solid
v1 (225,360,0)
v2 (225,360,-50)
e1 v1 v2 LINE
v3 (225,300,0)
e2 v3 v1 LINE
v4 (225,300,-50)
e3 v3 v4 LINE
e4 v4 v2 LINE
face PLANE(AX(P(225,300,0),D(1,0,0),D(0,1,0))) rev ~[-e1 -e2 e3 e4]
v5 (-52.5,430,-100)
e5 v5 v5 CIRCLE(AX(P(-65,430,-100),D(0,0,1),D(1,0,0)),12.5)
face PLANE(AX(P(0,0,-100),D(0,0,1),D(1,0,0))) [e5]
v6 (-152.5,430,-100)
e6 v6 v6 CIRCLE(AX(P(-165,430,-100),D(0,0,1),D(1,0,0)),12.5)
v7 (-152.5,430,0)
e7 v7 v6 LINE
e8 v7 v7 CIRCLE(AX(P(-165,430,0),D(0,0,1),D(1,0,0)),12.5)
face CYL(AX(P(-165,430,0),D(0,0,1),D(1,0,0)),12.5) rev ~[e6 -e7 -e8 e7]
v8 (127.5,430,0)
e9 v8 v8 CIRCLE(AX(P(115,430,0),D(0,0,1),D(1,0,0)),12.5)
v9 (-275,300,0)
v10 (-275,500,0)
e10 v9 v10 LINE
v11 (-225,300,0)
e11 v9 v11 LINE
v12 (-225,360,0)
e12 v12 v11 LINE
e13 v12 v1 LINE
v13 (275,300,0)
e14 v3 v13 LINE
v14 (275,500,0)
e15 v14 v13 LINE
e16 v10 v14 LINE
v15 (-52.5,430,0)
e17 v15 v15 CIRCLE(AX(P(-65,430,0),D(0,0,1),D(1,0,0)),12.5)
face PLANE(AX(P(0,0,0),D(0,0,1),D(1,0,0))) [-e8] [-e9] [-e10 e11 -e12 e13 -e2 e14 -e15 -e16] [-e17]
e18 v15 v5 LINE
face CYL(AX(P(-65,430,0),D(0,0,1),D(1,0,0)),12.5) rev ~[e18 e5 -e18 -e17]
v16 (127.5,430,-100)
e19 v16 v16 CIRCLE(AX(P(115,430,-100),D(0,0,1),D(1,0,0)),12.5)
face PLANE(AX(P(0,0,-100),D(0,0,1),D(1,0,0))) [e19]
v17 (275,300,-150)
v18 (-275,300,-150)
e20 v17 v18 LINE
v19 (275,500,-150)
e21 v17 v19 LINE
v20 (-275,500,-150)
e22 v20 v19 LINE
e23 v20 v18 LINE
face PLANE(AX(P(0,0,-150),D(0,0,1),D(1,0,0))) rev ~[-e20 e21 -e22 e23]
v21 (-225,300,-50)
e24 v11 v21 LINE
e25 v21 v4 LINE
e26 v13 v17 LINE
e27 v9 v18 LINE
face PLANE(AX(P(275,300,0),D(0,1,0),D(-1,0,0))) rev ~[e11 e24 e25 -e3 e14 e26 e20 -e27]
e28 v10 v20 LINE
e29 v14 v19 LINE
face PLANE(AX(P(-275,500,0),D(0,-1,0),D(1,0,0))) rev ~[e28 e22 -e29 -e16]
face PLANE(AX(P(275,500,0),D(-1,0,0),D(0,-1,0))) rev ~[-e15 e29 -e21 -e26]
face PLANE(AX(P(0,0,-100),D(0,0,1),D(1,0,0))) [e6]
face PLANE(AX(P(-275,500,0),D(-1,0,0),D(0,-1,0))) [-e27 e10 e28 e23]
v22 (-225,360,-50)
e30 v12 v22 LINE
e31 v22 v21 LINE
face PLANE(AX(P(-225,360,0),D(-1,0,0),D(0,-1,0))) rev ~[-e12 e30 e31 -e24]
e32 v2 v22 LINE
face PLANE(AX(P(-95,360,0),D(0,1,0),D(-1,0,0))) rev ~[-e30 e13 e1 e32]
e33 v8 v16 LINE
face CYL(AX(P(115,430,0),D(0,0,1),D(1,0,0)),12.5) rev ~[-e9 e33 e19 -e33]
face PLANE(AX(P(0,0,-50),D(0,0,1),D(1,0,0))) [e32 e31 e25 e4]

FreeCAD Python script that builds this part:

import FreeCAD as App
import Part
import Sketcher


def add_polygon(sketch, points):
    """Adds a closed chain of lines whose ends are joined by coincident constraints."""
    first, n = sketch.GeometryCount, len(points)
    for a, b in zip(points, points[1:] + points[:1]):
        sketch.addGeometry(Part.LineSegment(App.Vector(*a, 0), App.Vector(*b, 0)), False)
    for i in range(n):
        sketch.addConstraint(Sketcher.Constraint("Coincident", first + i, 2, first + (i + 1) % n, 1))

doc = App.newDocument("Part")
body = doc.addObject("PartDesign::Body", "Body")

# Sketch on XY plane
sketch1 = body.newObject("Sketcher::SketchObject", "Sketch")
sketch1.AttachmentSupport = (doc.getObject("XY_Plane"), [""])
sketch1.MapMode = "FlatFace"
add_polygon(sketch1, [(275, 500), (-275, 500), (-275, 300), (275, 300)])  # lines 0-3
sketch1.addConstraint([
    Sketcher.Constraint("Horizontal", 0),
    Sketcher.Constraint("Vertical", 1),
    Sketcher.Constraint("Horizontal", 2),
    Sketcher.Constraint("Vertical", 3),
    Sketcher.Constraint("DistanceX", 0, 2, 0, 1, 550.0),
    Sketcher.Constraint("DistanceY", 1, 2, 1, 1, 200.0),
    Sketcher.Constraint("DistanceX", 0, 2, -1, 1, 275.0),
    Sketcher.Constraint("DistanceY", -1, 1, 1, 2, 300.0),
])
pad1 = body.newObject("PartDesign::Pad", "Pad")
pad1.Profile = sketch1
pad1.Length = 150
pad1.Reversed = True

# Sketch on XY plane
sketch2 = body.newObject("Sketcher::SketchObject", "Sketch001")
sketch2.AttachmentSupport = (doc.getObject("XY_Plane"), [""])
sketch2.MapMode = "FlatFace"
add_polygon(sketch2, [(-225, 360), (-225, 300), (225, 300), (225, 360)])  # lines 0-3
sketch2.addConstraint([
    Sketcher.Constraint("Vertical", 0),
    Sketcher.Constraint("Horizontal", 1),
    Sketcher.Constraint("Vertical", 2),
    Sketcher.Constraint("Horizontal", 3),
    Sketcher.Constraint("DistanceX", 1, 1, 1, 2, 450.0),
    Sketcher.Constraint("DistanceY", 0, 2, 0, 1, 60.0),
    Sketcher.Constraint("DistanceX", 0, 2, -1, 1, 225.0),
    Sketcher.Constraint("DistanceY", -1, 1, 0, 2, 300.0),
])
pocket1 = body.newObject("PartDesign::Pocket", "Pocket")
pocket1.Profile = sketch2
pocket1.Length = 50

# Sketch on XY plane
sketch3 = body.newObject("Sketcher::SketchObject", "Sketch002")
sketch3.AttachmentSupport = (doc.getObject("XY_Plane"), [""])
sketch3.MapMode = "FlatFace"
sketch3.addGeometry([
    Part.Circle(App.Vector(-165, 430, 0), App.Vector(0, 0, 1), 12.5),
    Part.Circle(App.Vector(-65, 430, 0), App.Vector(0, 0, 1), 12.5),
    Part.Circle(App.Vector(115, 430, 0), App.Vector(0, 0, 1), 12.5),
], False)
sketch3.addConstraint([
    Sketcher.Constraint("Equal", 0, 1),
    Sketcher.Constraint("Equal", 1, 2),
    Sketcher.Constraint("Horizontal", 0, 3, 1, 3),
    Sketcher.Constraint("Horizontal", 1, 3, 2, 3),
    Sketcher.Constraint("Diameter", 0, 25.0),
    Sketcher.Constraint("DistanceX", 0, 3, -1, 1, 165.0),
    Sketcher.Constraint("DistanceY", -1, 1, 0, 3, 430.0),
    Sketcher.Constraint("DistanceX", 1, 3, -1, 1, 65.0),
    Sketcher.Constraint("DistanceX", -1, 1, 2, 3, 115.0),
])
pocket2 = body.newObject("PartDesign::Pocket", "Pocket001")
pocket2.Profile = sketch3
pocket2.Length = 100

doc.recompute()
